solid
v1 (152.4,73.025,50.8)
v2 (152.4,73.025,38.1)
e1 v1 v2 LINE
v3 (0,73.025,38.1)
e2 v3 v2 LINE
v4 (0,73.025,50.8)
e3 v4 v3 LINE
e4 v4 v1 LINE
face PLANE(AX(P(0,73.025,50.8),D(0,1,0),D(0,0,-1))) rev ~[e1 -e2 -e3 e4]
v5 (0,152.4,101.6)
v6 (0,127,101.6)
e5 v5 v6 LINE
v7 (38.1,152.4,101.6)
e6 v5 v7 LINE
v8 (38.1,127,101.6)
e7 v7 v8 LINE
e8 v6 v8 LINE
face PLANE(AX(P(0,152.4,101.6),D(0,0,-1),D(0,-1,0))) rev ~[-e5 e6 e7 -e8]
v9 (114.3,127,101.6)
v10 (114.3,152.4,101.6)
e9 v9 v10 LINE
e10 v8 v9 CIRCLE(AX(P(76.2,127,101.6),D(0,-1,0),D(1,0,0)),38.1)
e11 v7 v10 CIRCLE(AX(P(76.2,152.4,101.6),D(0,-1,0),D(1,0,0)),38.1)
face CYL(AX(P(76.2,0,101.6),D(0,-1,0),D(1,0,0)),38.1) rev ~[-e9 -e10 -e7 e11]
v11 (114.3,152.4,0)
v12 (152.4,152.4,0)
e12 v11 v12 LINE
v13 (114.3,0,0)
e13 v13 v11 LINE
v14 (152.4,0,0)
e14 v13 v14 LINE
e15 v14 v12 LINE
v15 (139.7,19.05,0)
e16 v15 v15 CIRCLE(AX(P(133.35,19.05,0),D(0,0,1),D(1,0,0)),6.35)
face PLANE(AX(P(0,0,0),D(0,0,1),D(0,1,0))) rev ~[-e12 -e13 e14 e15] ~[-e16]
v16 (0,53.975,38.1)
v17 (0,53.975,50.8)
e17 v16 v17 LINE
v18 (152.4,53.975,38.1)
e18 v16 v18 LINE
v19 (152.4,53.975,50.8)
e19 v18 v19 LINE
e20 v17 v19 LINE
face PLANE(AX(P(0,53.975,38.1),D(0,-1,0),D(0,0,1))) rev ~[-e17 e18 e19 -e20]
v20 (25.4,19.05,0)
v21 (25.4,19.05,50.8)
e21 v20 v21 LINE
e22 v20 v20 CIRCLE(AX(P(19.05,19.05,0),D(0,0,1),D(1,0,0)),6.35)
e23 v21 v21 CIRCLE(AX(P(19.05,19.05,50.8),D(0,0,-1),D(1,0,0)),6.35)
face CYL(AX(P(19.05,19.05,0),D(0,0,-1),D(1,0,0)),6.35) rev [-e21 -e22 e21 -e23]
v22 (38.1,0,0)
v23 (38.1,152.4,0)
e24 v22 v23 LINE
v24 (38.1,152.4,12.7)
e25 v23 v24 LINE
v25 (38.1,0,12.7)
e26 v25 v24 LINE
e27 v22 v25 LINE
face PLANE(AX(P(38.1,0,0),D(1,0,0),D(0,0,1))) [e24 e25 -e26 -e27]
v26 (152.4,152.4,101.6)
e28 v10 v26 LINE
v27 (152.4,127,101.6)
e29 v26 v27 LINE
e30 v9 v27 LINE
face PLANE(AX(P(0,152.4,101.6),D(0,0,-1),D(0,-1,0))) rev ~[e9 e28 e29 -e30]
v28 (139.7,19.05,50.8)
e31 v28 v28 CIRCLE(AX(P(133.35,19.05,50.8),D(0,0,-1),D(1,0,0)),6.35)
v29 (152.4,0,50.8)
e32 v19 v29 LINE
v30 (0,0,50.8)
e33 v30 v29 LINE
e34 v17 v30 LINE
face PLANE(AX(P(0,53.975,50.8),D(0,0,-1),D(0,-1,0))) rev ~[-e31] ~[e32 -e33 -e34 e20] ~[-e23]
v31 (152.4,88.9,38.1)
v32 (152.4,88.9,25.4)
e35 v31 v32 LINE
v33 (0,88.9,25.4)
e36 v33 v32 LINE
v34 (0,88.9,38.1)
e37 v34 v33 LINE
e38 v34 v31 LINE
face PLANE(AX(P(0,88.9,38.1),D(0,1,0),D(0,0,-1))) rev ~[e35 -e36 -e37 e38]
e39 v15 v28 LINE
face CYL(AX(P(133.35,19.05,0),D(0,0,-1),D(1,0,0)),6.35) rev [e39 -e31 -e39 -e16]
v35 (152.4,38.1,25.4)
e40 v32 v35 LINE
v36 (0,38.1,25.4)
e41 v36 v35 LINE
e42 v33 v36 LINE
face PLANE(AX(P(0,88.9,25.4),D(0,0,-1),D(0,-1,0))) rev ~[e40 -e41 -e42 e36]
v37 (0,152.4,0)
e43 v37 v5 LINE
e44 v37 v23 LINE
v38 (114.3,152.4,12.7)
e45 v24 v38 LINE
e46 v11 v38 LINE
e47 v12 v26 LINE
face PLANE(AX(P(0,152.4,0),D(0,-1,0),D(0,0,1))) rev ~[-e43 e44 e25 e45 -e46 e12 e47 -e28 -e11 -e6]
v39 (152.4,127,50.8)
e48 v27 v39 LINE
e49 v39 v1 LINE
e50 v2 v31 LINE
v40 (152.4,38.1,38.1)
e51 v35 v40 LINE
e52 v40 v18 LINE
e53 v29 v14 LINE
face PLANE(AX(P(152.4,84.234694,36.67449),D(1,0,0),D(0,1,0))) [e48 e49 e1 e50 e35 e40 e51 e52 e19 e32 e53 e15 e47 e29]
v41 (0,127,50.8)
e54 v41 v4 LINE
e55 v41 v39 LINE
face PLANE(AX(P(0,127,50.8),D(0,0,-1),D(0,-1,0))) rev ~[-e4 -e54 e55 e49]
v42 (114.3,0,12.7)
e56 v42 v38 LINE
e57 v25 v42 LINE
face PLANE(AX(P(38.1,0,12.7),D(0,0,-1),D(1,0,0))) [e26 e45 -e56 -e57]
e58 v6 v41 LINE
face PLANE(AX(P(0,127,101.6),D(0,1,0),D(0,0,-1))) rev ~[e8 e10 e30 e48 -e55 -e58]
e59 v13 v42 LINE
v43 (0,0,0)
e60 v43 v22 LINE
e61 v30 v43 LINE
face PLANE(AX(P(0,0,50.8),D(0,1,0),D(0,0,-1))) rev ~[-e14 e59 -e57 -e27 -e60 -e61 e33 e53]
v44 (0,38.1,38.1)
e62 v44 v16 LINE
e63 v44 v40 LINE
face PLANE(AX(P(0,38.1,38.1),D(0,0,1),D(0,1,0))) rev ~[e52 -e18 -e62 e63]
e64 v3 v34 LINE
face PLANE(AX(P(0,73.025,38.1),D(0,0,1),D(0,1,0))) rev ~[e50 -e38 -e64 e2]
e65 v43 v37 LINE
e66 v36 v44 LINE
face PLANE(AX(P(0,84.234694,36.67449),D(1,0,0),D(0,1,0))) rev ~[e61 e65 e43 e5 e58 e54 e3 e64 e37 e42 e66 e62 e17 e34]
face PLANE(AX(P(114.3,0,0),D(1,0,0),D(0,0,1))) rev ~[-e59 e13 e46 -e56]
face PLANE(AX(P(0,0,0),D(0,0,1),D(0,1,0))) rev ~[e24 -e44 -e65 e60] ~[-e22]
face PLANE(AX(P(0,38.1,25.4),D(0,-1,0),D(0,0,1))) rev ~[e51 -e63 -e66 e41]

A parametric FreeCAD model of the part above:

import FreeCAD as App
import Part
import Sketcher

V = App.Vector
Q = App.Units.Quantity

doc = App.newDocument("Part")
body = doc.addObject("PartDesign::Body", "Body")

# Sketch on YZ plane
sketch1 = doc.addObject("Sketcher::SketchObject", "Sketch")
body.addObject(sketch1)
sketch1.AttachmentSupport = (doc.YZ_Plane, [""])
sketch1.MapMode = "FlatFace"
sketch1.addGeometry(Part.LineSegment(V(0, 51, 0), V(0, 0, 0)), False)
sketch1.addGeometry(Part.LineSegment(V(0, 0, 0), V(152, 0, 0)), False)
sketch1.addGeometry(Part.LineSegment(V(152, 0, 0), V(152, 102, 0)), False)
sketch1.addGeometry(Part.LineSegment(V(152, 102, 0), V(127, 102, 0)), False)
sketch1.addGeometry(Part.LineSegment(V(127, 102, 0), V(127, 51, 0)), False)
sketch1.addGeometry(Part.LineSegment(V(127, 51, 0), V(73, 51, 0)), False)
sketch1.addGeometry(Part.LineSegment(V(73, 51, 0), V(73, 38, 0)), False)
sketch1.addGeometry(Part.LineSegment(V(73, 38, 0), V(89, 38, 0)), False)
sketch1.addGeometry(Part.LineSegment(V(89, 38, 0), V(89, 25, 0)), False)
sketch1.addGeometry(Part.LineSegment(V(89, 25, 0), V(38, 25, 0)), False)
sketch1.addGeometry(Part.LineSegment(V(38, 25, 0), V(38, 38, 0)), False)
sketch1.addGeometry(Part.LineSegment(V(38, 38, 0), V(54, 38, 0)), False)
sketch1.addGeometry(Part.LineSegment(V(54, 38, 0), V(54, 51, 0)), False)
sketch1.addGeometry(Part.LineSegment(V(54, 51, 0), V(0, 51, 0)), False)
sketch1.addConstraint(Sketcher.Constraint("Coincident", 0, 2, 1, 1))
sketch1.addConstraint(Sketcher.Constraint("Coincident", 1, 2, 2, 1))
sketch1.addConstraint(Sketcher.Constraint("Coincident", 2, 2, 3, 1))
sketch1.addConstraint(Sketcher.Constraint("Coincident", 3, 2, 4, 1))
sketch1.addConstraint(Sketcher.Constraint("Coincident", 4, 2, 5, 1))
sketch1.addConstraint(Sketcher.Constraint("Coincident", 5, 2, 6, 1))
sketch1.addConstraint(Sketcher.Constraint("Coincident", 6, 2, 7, 1))
sketch1.addConstraint(Sketcher.Constraint("Coincident", 7, 2, 8, 1))
sketch1.addConstraint(Sketcher.Constraint("Coincident", 8, 2, 9, 1))
sketch1.addConstraint(Sketcher.Constraint("Coincident", 9, 2, 10, 1))
sketch1.addConstraint(Sketcher.Constraint("Coincident", 10, 2, 11, 1))
sketch1.addConstraint(Sketcher.Constraint("Coincident", 11, 2, 12, 1))
sketch1.addConstraint(Sketcher.Constraint("Coincident", 12, 2, 13, 1))
sketch1.addConstraint(Sketcher.Constraint("Coincident", 13, 2, 0, 1))
sketch1.addConstraint(Sketcher.Constraint("Vertical", 0))
sketch1.addConstraint(Sketcher.Constraint("Horizontal", 1))
sketch1.addConstraint(Sketcher.Constraint("Vertical", 2))
sketch1.addConstraint(Sketcher.Constraint("Horizontal", 3))
sketch1.addConstraint(Sketcher.Constraint("Vertical", 4))
sketch1.addConstraint(Sketcher.Constraint("Horizontal", 5))
sketch1.addConstraint(Sketcher.Constraint("Vertical", 6))
sketch1.addConstraint(Sketcher.Constraint("Horizontal", 7))
sketch1.addConstraint(Sketcher.Constraint("Vertical", 8))
sketch1.addConstraint(Sketcher.Constraint("Horizontal", 9))
sketch1.addConstraint(Sketcher.Constraint("Vertical", 10))
sketch1.addConstraint(Sketcher.Constraint("Horizontal", 11))
sketch1.addConstraint(Sketcher.Constraint("Vertical", 12))
sketch1.addConstraint(Sketcher.Constraint("Horizontal", 13))
sketch1.addConstraint(Sketcher.Constraint("Coincident", 0, 2, -1, 1))
sketch1.addConstraint(Sketcher.Constraint("Horizontal", 7, 2, 10, 2))
sketch1.addConstraint(Sketcher.Constraint("Horizontal", 5, 2, 12, 2))
sketch1.addConstraint(Sketcher.Constraint("Equal", 7, 11))
sketch1.addConstraint(Sketcher.Constraint("Equal", 5, 13))
sketch1.addConstraint(Sketcher.Constraint("Equal", 9, 0))
sketch1.addConstraint(Sketcher.Constraint("Equal", 0, 4))
sketch1.addConstraint(Sketcher.Constraint("Equal", 6, 8))
sketch1.addConstraint(Sketcher.Constraint("DistanceX", 1, 1, 1, 2, Q("6 in")))
sketch1.addConstraint(Sketcher.Constraint("DistanceX", 3, 2, 3, 1, Q("1 in")))
sketch1.addConstraint(Sketcher.Constraint("DistanceX", 9, 2, 9, 1, Q("2 in")))
sketch1.addConstraint(Sketcher.Constraint("DistanceY", 6, 2, 6, 1, Q("0.5 in")))
sketch1.addConstraint(Sketcher.Constraint("DistanceX", 5, 2, 5, 1, Q("2.125 in")))
pad1 = doc.addObject("PartDesign::Pad", "Pad")
body.addObject(pad1)
pad1.Profile = sketch1
pad1.Length = Q("6 in")

# Sketch on XZ plane
sketch2 = doc.addObject("Sketcher::SketchObject", "Sketch001")
body.addObject(sketch2)
sketch2.AttachmentSupport = (doc.XZ_Plane, [""])
sketch2.MapMode = "FlatFace"
sketch2.addGeometry(Part.LineSegment(V(38, 13, 0), V(38, 0, 0)), False)
sketch2.addGeometry(Part.LineSegment(V(38, 0, 0), V(114, 0, 0)), False)
sketch2.addGeometry(Part.LineSegment(V(114, 0, 0), V(114, 13, 0)), False)
sketch2.addGeometry(Part.LineSegment(V(114, 13, 0), V(38, 13, 0)), False)
sketch2.addConstraint(Sketcher.Constraint("Coincident", 0, 2, 1, 1))
sketch2.addConstraint(Sketcher.Constraint("Coincident", 1, 2, 2, 1))
sketch2.addConstraint(Sketcher.Constraint("Coincident", 2, 2, 3, 1))
sketch2.addConstraint(Sketcher.Constraint("Coincident", 3, 2, 0, 1))
sketch2.addConstraint(Sketcher.Constraint("Vertical", 0))
sketch2.addConstraint(Sketcher.Constraint("Horizontal", 1))
sketch2.addConstraint(Sketcher.Constraint("Vertical", 2))
sketch2.addConstraint(Sketcher.Constraint("Horizontal", 3))
sketch2.addConstraint(Sketcher.Constraint("PointOnObject", 0, 2, -1))
sketch2.addConstraint(Sketcher.Constraint("DistanceX", 1, 1, 1, 2, Q("3 in")))
sketch2.addConstraint(Sketcher.Constraint("DistanceY", 0, 2, 0, 1, Q("0.5 in")))
sketch2.addConstraint(Sketcher.Constraint("DistanceX", -1, 1, 0, 2, Q("1.5 in")))
pocket1 = doc.addObject("PartDesign::Pocket", "Pocket")
body.addObject(pocket1)
pocket1.Profile = sketch2
pocket1.Length = Q("6 in")

# Sketch on XZ plane
sketch3 = doc.addObject("Sketcher::SketchObject", "Sketch002")
body.addObject(sketch3)
sketch3.AttachmentSupport = (doc.XZ_Plane, [""])
sketch3.MapMode = "FlatFace"
sketch3.addGeometry(Part.Circle(V(76, 102, 0), V(0, 0, 1), 38), False)
sketch3.addConstraint(Sketcher.Constraint("Diameter", 0, Q("3 in")))
sketch3.addConstraint(Sketcher.Constraint("DistanceX", -1, 1, 0, 3, Q("3 in")))
sketch3.addConstraint(Sketcher.Constraint("DistanceY", -1, 1, 0, 3, Q("4 in")))
pocket2 = doc.addObject("PartDesign::Pocket", "Pocket001")
body.addObject(pocket2)
pocket2.Profile = sketch3
pocket2.Length = 171.70927

# Sketch on XY plane
sketch4 = doc.addObject("Sketcher::SketchObject", "Sketch003")
body.addObject(sketch4)
sketch4.AttachmentSupport = (doc.XY_Plane, [""])
sketch4.MapMode = "FlatFace"
sketch4.addGeometry(Part.Circle(V(19, 19, 0), V(0, 0, 1), 6), False)
sketch4.addGeometry(Part.Circle(V(133, 19, 0), V(0, 0, 1), 6), False)
sketch4.addConstraint(Sketcher.Constraint("Equal", 0, 1))
sketch4.addConstraint(Sketcher.Constraint("Horizontal", 0, 3, 1, 3))
sketch4.addConstraint(Sketcher.Constraint("Diameter", 0, Q("0.5 in")))
sketch4.addConstraint(Sketcher.Constraint("DistanceX", 0, 3, 1, 3, Q("4.5 in")))
sketch4.addConstraint(Sketcher.Constraint("DistanceX", -1, 1, 0, 3, Q("0.75 in")))
sketch4.addConstraint(Sketcher.Constraint("DistanceY", -1, 1, 0, 3, Q("0.75 in")))
pocket3 = doc.addObject("PartDesign::Pocket", "Pocket002")
body.addObject(pocket3)
pocket3.Profile = sketch4
pocket3.Length = Q("6 in")
pocket3.Reversed = True

doc.recompute()
